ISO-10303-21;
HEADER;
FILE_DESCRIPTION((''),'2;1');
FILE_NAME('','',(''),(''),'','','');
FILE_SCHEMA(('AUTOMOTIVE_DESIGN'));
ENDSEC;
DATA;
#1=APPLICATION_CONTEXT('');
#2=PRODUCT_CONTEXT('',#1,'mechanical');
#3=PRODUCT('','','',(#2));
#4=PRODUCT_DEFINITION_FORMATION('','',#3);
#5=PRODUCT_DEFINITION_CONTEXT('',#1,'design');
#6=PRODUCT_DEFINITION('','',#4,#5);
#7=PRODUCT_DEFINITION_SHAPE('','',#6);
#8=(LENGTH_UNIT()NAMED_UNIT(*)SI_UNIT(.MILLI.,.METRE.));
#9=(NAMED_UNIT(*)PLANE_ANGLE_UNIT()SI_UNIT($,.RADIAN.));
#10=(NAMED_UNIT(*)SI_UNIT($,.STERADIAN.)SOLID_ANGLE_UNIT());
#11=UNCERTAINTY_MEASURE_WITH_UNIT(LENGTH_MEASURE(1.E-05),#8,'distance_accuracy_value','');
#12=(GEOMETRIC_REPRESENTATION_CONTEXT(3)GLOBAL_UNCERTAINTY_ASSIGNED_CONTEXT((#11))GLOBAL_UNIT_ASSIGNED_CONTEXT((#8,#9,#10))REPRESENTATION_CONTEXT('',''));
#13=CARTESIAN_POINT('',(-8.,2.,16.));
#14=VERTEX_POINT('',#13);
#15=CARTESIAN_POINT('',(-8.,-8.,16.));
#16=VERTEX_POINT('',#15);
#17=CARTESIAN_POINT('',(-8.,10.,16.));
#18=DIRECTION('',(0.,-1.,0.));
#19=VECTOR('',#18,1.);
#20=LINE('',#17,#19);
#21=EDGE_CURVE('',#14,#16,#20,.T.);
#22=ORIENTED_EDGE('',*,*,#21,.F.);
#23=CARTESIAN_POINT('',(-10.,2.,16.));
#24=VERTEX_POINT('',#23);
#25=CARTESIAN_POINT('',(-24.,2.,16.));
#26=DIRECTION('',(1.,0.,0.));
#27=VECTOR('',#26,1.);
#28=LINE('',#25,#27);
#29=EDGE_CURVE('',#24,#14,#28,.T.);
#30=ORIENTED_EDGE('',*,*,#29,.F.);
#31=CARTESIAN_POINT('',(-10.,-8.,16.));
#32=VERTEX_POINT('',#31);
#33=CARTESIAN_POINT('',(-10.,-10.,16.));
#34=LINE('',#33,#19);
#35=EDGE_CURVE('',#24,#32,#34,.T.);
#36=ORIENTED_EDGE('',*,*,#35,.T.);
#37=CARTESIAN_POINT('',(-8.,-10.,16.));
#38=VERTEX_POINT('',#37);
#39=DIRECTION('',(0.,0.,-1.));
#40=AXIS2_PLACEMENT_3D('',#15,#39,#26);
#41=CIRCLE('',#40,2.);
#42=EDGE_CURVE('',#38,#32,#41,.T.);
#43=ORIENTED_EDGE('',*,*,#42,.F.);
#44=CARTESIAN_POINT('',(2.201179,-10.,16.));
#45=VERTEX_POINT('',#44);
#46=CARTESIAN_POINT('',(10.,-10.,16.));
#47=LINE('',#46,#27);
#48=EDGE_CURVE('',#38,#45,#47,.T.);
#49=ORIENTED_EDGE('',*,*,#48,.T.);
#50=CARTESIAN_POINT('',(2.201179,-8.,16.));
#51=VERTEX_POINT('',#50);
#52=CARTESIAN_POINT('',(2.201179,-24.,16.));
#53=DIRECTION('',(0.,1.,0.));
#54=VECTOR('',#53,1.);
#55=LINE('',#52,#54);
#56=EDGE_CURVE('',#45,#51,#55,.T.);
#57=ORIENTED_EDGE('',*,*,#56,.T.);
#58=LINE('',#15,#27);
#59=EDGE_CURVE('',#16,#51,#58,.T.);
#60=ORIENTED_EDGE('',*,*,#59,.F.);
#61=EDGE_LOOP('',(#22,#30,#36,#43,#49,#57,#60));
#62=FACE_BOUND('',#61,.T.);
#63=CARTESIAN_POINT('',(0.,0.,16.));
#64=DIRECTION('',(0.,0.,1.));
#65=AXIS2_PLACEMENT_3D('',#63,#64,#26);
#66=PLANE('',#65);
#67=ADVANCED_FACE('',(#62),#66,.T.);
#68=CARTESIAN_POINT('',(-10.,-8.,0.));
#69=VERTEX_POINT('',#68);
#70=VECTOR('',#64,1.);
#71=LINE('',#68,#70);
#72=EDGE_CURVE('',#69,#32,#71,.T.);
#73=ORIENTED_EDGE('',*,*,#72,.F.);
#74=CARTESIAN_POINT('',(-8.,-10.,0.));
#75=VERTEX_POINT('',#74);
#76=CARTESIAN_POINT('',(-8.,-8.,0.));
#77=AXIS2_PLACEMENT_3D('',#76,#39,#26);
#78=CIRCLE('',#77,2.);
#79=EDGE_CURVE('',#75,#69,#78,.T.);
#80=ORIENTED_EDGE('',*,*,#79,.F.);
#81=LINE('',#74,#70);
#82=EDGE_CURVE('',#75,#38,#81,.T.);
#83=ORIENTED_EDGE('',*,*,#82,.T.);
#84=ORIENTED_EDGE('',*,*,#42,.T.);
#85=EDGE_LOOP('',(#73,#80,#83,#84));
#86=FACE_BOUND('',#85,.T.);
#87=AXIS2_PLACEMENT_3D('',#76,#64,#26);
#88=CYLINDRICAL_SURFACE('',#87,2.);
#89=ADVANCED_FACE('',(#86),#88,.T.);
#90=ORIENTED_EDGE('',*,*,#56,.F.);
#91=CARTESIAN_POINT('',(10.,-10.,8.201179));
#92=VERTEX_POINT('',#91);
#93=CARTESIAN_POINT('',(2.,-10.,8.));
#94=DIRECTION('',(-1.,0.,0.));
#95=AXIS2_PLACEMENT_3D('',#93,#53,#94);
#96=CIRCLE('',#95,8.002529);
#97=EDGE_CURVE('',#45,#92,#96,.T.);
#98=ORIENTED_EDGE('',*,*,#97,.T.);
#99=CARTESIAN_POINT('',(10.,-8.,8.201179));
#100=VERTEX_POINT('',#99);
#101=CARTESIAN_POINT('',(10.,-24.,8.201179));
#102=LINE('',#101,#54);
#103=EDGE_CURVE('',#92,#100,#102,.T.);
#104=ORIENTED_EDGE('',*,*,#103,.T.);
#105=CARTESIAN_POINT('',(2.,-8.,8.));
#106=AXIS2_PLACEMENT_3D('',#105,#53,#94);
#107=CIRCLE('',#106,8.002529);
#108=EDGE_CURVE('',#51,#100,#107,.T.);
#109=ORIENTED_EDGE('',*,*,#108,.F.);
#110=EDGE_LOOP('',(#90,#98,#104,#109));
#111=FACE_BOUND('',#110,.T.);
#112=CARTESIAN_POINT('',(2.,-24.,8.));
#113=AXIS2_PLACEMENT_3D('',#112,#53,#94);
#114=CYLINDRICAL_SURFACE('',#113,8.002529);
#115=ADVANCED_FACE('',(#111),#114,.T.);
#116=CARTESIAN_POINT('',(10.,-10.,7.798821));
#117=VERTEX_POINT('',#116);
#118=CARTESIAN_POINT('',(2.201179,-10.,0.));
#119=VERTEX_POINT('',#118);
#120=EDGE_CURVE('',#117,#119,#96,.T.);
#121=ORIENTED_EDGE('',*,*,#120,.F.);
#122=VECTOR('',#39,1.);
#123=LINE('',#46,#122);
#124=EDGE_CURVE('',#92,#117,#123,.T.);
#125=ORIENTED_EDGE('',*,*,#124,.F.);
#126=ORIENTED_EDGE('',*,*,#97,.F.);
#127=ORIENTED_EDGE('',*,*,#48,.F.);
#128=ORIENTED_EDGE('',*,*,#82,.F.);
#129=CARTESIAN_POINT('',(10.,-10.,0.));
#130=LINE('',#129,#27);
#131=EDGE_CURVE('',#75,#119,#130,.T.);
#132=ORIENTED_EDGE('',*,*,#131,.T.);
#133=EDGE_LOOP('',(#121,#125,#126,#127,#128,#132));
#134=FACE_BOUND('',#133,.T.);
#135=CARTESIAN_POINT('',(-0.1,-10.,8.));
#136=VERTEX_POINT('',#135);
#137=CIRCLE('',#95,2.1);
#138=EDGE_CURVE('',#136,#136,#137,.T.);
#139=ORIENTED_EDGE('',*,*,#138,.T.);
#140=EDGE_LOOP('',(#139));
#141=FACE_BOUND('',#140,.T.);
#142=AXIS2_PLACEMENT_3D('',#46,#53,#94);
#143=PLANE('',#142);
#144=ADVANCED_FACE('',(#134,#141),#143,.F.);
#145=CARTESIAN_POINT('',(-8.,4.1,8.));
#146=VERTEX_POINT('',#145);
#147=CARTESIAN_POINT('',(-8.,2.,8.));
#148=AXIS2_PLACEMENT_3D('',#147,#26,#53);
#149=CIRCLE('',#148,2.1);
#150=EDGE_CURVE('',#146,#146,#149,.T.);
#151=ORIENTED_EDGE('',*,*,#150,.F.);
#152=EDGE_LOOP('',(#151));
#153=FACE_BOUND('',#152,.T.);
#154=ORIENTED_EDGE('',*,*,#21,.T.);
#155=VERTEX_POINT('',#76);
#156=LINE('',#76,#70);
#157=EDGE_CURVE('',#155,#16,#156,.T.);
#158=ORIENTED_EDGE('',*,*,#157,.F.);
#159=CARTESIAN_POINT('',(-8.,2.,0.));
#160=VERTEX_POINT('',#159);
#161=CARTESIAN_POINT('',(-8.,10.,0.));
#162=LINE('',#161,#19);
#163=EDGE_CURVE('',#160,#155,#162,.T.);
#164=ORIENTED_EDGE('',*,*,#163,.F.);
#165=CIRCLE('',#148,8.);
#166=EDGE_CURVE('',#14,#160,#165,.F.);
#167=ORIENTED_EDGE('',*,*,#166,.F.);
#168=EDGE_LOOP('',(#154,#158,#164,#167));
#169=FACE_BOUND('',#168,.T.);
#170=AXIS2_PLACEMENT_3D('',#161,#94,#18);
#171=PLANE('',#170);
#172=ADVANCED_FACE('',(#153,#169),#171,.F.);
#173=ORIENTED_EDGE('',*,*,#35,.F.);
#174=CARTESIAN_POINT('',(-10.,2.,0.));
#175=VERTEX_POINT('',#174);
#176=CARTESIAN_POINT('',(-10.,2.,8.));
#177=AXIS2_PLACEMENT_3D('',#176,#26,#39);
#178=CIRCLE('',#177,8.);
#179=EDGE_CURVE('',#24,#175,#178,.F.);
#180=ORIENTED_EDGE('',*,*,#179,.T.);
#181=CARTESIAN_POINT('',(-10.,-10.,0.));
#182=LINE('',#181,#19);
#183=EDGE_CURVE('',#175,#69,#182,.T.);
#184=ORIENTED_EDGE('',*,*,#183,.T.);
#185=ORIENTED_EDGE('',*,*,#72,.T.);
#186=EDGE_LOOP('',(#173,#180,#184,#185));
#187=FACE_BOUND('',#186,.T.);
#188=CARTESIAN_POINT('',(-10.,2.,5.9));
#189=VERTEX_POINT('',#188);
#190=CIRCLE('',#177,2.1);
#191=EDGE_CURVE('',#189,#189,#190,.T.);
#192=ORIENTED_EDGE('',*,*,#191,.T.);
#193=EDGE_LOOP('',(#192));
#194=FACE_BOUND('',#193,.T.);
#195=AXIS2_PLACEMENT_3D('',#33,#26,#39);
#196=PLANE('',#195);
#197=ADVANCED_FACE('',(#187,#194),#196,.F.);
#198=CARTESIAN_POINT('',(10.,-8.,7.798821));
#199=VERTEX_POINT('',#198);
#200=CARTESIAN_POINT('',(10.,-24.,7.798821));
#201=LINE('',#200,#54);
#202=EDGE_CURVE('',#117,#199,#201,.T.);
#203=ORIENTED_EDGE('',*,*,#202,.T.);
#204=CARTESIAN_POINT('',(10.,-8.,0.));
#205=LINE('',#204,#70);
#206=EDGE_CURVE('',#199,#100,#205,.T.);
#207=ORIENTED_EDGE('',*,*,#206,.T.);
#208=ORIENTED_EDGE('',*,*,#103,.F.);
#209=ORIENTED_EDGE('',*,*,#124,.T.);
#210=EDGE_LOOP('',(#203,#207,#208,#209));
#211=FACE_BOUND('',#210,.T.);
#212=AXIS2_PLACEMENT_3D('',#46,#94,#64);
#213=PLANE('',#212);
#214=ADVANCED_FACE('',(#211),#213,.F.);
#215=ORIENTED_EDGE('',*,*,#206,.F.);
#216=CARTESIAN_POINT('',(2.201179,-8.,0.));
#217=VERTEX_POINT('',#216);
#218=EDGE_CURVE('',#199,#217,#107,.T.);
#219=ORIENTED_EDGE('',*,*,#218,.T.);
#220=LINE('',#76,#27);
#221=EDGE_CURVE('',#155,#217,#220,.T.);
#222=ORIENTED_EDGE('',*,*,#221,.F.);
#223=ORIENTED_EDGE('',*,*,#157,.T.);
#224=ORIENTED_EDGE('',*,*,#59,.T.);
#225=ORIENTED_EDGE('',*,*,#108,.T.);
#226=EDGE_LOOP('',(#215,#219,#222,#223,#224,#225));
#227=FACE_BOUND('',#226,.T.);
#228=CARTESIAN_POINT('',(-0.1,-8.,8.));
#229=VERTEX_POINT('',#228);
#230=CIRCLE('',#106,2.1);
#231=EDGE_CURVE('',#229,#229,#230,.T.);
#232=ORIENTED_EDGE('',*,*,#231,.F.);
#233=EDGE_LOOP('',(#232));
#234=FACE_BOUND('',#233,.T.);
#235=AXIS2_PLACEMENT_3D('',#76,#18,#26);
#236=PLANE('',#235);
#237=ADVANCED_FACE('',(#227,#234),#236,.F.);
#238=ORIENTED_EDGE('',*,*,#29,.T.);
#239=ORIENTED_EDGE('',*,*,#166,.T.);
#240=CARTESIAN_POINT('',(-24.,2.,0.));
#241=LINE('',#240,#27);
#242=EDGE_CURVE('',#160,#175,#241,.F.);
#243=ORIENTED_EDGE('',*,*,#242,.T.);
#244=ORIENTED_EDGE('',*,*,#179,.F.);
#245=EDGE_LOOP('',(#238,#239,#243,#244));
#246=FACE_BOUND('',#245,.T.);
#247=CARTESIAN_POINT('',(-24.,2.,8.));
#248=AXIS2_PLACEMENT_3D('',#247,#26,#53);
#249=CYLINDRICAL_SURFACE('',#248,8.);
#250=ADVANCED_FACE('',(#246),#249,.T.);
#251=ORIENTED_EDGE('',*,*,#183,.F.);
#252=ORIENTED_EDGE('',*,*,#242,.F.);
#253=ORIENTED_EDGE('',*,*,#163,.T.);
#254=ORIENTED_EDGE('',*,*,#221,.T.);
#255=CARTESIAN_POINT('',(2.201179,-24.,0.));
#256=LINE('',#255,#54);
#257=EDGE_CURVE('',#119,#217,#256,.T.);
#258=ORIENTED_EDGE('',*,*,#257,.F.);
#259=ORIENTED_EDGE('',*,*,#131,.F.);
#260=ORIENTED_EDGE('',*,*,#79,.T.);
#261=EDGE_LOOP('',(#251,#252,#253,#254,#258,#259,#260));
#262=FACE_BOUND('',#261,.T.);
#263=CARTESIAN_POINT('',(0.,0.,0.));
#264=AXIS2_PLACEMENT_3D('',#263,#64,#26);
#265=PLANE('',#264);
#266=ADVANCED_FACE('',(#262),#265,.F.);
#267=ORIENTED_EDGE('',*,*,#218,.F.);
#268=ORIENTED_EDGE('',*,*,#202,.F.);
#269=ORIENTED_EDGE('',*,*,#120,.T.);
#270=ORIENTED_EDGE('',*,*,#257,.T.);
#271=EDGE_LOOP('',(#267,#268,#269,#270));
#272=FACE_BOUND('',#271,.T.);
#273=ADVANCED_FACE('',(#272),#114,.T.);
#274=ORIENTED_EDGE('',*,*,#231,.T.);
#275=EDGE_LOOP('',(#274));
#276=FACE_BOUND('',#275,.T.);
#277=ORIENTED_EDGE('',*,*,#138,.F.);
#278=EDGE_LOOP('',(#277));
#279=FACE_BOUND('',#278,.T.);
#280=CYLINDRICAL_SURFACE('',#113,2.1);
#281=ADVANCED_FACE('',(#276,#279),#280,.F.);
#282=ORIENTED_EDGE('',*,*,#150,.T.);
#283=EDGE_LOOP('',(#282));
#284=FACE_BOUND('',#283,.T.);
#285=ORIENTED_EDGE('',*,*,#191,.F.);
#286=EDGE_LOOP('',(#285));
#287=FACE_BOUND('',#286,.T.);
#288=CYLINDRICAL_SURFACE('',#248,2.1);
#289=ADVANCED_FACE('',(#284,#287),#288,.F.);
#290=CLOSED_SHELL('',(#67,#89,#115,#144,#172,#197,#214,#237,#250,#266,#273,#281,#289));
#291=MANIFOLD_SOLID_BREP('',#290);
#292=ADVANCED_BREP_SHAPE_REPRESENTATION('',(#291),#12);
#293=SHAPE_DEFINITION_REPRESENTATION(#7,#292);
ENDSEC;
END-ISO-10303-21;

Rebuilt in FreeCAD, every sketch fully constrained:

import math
import FreeCAD as App
import Part
import Sketcher
Q = App.Units.Quantity


def add_polygon(sketch, points):
    """Adds a closed chain of lines whose ends are joined by coincident constraints."""
    first, n = sketch.GeometryCount, len(points)
    for a, b in zip(points, points[1:] + points[:1]):
        sketch.addGeometry(Part.LineSegment(App.Vector(*a, 0), App.Vector(*b, 0)), False)
    for i in range(n):
        sketch.addConstraint(Sketcher.Constraint("Coincident", first + i, 2, first + (i + 1) % n, 1))

doc = App.newDocument("Part")
body = doc.addObject("PartDesign::Body", "Body")

sketch1 = body.newObject("Sketcher::SketchObject", "Sketch")
sketch1.AttachmentSupport = (doc.getObject("XY_Plane"), [""])
sketch1.MapMode = "FlatFace"
add_polygon(sketch1, [(-10, 10), (-10, -10), (10, -10), (10, 10)])
sketch1.addConstraint([
    Sketcher.Constraint("Vertical", 0),
    Sketcher.Constraint("Horizontal", 1),
    Sketcher.Constraint("Vertical", 2),
    Sketcher.Constraint("Horizontal", 3),
    Sketcher.Constraint("Symmetric", 0, 2, 2, 2, -1, 1),
    Sketcher.Constraint("Equal", 3, 0),
    Sketcher.Constraint("DistanceX", 1, 1, 1, 2, Q("20 mm")),
])
pad1 = body.newObject("PartDesign::Pad", "Pad")
pad1.Profile = sketch1
pad1.Length = 16

sketch2 = body.newObject("Sketcher::SketchObject", "Sketch001")
sketch2.AttachmentSupport = (doc.getObject("XY_Plane"), [""])
sketch2.MapMode = "FlatFace"
sketch2.AttachmentOffset = App.Placement(App.Vector(0, 0, 16), App.Rotation())
add_polygon(sketch2, [(-8, 10), (-8, -8), (10, -8), (10, 10)])
sketch2.addConstraint([
    Sketcher.Constraint("Vertical", 0),
    Sketcher.Constraint("Horizontal", 1),
    Sketcher.Constraint("Vertical", 2),
    Sketcher.Constraint("Horizontal", 3),
    Sketcher.Constraint("Equal", 3, 0),
    Sketcher.Constraint("DistanceX", 1, 1, 1, 2, Q("18 mm")),
    Sketcher.Constraint("DistanceX", 0, 2, -1, 1, Q("8 mm")),
    Sketcher.Constraint("DistanceY", 0, 2, -1, 1, Q("8 mm")),
])
pocket1 = body.newObject("PartDesign::Pocket", "Pocket")
pocket1.Profile = sketch2
pocket1.Length = 16

sketch3 = body.newObject("Sketcher::SketchObject", "Sketch002")
sketch3.AttachmentSupport = (doc.getObject("YZ_Plane"), [""])
sketch3.MapMode = "FlatFace"
sketch3.AttachmentOffset = App.Placement(App.Vector(0, 0, -8), App.Rotation())
sketch3.addGeometry(Part.Circle(App.Vector(2, 8, 0), App.Vector(0, 0, 1), 2.1), False)
sketch3.addConstraint([
    Sketcher.Constraint("Diameter", 0, Q("4.2 mm")),
    Sketcher.Constraint("DistanceX", -1, 1, 0, 3, Q("2 mm")),
    Sketcher.Constraint("DistanceY", -1, 1, 0, 3, Q("8 mm")),
])
pocket2 = body.newObject("PartDesign::Pocket", "Pocket001")
pocket2.Profile = sketch3
pocket2.Length = 16

sketch4 = body.newObject("Sketcher::SketchObject", "Sketch003")
sketch4.AttachmentSupport = (doc.getObject("XZ_Plane"), [""])
sketch4.MapMode = "FlatFace"
sketch4.AttachmentOffset = App.Placement(App.Vector(0, 0, 8), App.Rotation())
sketch4.addGeometry(Part.Circle(App.Vector(2, 8, 0), App.Vector(0, 0, 1), 2.1), False)
sketch4.addConstraint([
    Sketcher.Constraint("Diameter", 0, Q("4.2 mm")),
    Sketcher.Constraint("DistanceX", -1, 1, 0, 3, Q("2 mm")),
    Sketcher.Constraint("DistanceY", -1, 1, 0, 3, Q("8 mm")),
])
pocket3 = body.newObject("PartDesign::Pocket", "Pocket002")
pocket3.Profile = sketch4
pocket3.Length = 16
pocket3.Reversed = True

sketch5 = body.newObject("Sketcher::SketchObject", "Sketch004")
sketch5.AttachmentSupport = (doc.getObject("YZ_Plane"), [""])
sketch5.MapMode = "FlatFace"
sketch5.AttachmentOffset = App.Placement(App.Vector(0, 0, -8), App.Rotation())
sketch5.addGeometry([
    Part.LineSegment(App.Vector(10, 16, 0), App.Vector(2, 16, 0)),
    Part.ArcOfCircle(Part.Circle(App.Vector(2, 8, 0), App.Vector(0, 0, 1), 8), math.radians(0), math.radians(90)),
    Part.LineSegment(App.Vector(10, 8, 0), App.Vector(10, 16, 0)),
    Part.LineSegment(App.Vector(10, 0, 0), App.Vector(10, 8, 0)),
    Part.ArcOfCircle(Part.Circle(App.Vector(2, 8, 0), App.Vector(0, 0, 1), 8), math.radians(-90), math.radians(0)),
    Part.LineSegment(App.Vector(2, 0, 0), App.Vector(10, 0, 0)),
], False)
sketch5.addConstraint([
    Sketcher.Constraint("Tangent", 0, 2, 1, 2),
    Sketcher.Constraint("Tangent", 1, 1, 2, 1),
    Sketcher.Constraint("Coincident", 2, 2, 0, 1),
    Sketcher.Constraint("Tangent", 3, 2, 4, 2),
    Sketcher.Constraint("Tangent", 4, 1, 5, 1),
    Sketcher.Constraint("Coincident", 5, 2, 3, 1),
    Sketcher.Constraint("Horizontal", 0),
    Sketcher.Constraint("Vertical", 2),
    Sketcher.Constraint("Vertical", 3),
    Sketcher.Constraint("Horizontal", 5),
    Sketcher.Constraint("Coincident", 4, 3, 1, 3),
    Sketcher.Constraint("Equal", 1, 4),
    Sketcher.Constraint("PointOnObject", 4, 1, -1),
    Sketcher.Constraint("Radius", 1, Q("8 mm")),
    Sketcher.Constraint("DistanceX", -1, 1, 1, 3, Q("2 mm")),
])
pocket4 = body.newObject("PartDesign::Pocket", "Pocket003")
pocket4.Profile = sketch5
pocket4.Length = 16

sketch6 = body.newObject("Sketcher::SketchObject", "Sketch005")
sketch6.AttachmentSupport = (doc.getObject("XZ_Plane"), [""])
sketch6.MapMode = "FlatFace"
sketch6.AttachmentOffset = App.Placement(App.Vector(0, 0, 8), App.Rotation())
sketch6.addGeometry([
    Part.LineSegment(App.Vector(10, 7.798821, 0), App.Vector(10, 0, 0)),
    Part.LineSegment(App.Vector(10, 0, 0), App.Vector(2.201179, 0, 0)),
    Part.ArcOfCircle(Part.Circle(App.Vector(2, 8, 0), App.Vector(0, 0, 1), 8.002529), math.radians(-88.559466), math.radians(-1.440534)),
    Part.LineSegment(App.Vector(10, 16, 0), App.Vector(10, 8.201179, 0)),
    Part.ArcOfCircle(Part.Circle(App.Vector(2, 8, 0), App.Vector(0, 0, 1), 8.002529), math.radians(1.440534), math.radians(88.559466)),
    Part.LineSegment(App.Vector(2.201179, 16, 0), App.Vector(10, 16, 0)),
], False)
sketch6.addConstraint([
    Sketcher.Constraint("Coincident", 0, 2, 1, 1),
    Sketcher.Constraint("Coincident", 1, 2, 2, 1),
    Sketcher.Constraint("Coincident", 2, 2, 0, 1),
    Sketcher.Constraint("Coincident", 3, 2, 4, 1),
    Sketcher.Constraint("Coincident", 4, 2, 5, 1),
    Sketcher.Constraint("Coincident", 5, 2, 3, 1),
    Sketcher.Constraint("Vertical", 0),
    Sketcher.Constraint("Horizontal", 1),
    Sketcher.Constraint("Vertical", 3),
    Sketcher.Constraint("Horizontal", 5),
    Sketcher.Constraint("Coincident", 4, 3, 2, 3),
    Sketcher.Constraint("Equal", 2, 4),
    Sketcher.Constraint("PointOnObject", 0, 2, -1),
    Sketcher.Constraint("Vertical", 2, 2, 3, 2),
    Sketcher.Constraint("Vertical", 1, 2, 4, 2),
    Sketcher.Constraint("Equal", 5, 0),
    Sketcher.Constraint("DistanceX", -1, 1, 2, 3, Q("2 mm")),
    Sketcher.Constraint("DistanceY", -1, 1, 2, 3, Q("8 mm")),
    Sketcher.Constraint("Radius", 2, Q("8.002529 mm")),
])
pocket5 = body.newObject("PartDesign::Pocket", "Pocket004")
pocket5.Profile = sketch6
pocket5.Length = 16
pocket5.Reversed = True

sketch7 = body.newObject("Sketcher::SketchObject", "Sketch006")
sketch7.AttachmentSupport = (doc.getObject("XY_Plane"), [""])
sketch7.MapMode = "FlatFace"
sketch7.AttachmentOffset = App.Placement(App.Vector(0, 0, 16), App.Rotation())
sketch7.addGeometry([
    Part.LineSegment(App.Vector(-10, -8, 0), App.Vector(-10, -10, 0)),
    Part.LineSegment(App.Vector(-10, -10, 0), App.Vector(-8, -10, 0)),
    Part.ArcOfCircle(Part.Circle(App.Vector(-8, -8, 0), App.Vector(0, 0, 1), 2), math.radians(-180), math.radians(-90)),
], False)
sketch7.addConstraint([
    Sketcher.Constraint("Coincident", 0, 2, 1, 1),
    Sketcher.Constraint("Tangent", 1, 2, 2, 2),
    Sketcher.Constraint("Tangent", 2, 1, 0, 1),
    Sketcher.Constraint("Vertical", 0),
    Sketcher.Constraint("Horizontal", 1),
    Sketcher.Constraint("Radius", 2, Q("2 mm")),
    Sketcher.Constraint("DistanceX", 2, 3, -1, 1, Q("8 mm")),
    Sketcher.Constraint("DistanceY", 2, 3, -1, 1, Q("8 mm")),
])
pocket6 = body.newObject("PartDesign::Pocket", "Pocket005")
pocket6.Profile = sketch7
pocket6.Length = 16

doc.recompute()
